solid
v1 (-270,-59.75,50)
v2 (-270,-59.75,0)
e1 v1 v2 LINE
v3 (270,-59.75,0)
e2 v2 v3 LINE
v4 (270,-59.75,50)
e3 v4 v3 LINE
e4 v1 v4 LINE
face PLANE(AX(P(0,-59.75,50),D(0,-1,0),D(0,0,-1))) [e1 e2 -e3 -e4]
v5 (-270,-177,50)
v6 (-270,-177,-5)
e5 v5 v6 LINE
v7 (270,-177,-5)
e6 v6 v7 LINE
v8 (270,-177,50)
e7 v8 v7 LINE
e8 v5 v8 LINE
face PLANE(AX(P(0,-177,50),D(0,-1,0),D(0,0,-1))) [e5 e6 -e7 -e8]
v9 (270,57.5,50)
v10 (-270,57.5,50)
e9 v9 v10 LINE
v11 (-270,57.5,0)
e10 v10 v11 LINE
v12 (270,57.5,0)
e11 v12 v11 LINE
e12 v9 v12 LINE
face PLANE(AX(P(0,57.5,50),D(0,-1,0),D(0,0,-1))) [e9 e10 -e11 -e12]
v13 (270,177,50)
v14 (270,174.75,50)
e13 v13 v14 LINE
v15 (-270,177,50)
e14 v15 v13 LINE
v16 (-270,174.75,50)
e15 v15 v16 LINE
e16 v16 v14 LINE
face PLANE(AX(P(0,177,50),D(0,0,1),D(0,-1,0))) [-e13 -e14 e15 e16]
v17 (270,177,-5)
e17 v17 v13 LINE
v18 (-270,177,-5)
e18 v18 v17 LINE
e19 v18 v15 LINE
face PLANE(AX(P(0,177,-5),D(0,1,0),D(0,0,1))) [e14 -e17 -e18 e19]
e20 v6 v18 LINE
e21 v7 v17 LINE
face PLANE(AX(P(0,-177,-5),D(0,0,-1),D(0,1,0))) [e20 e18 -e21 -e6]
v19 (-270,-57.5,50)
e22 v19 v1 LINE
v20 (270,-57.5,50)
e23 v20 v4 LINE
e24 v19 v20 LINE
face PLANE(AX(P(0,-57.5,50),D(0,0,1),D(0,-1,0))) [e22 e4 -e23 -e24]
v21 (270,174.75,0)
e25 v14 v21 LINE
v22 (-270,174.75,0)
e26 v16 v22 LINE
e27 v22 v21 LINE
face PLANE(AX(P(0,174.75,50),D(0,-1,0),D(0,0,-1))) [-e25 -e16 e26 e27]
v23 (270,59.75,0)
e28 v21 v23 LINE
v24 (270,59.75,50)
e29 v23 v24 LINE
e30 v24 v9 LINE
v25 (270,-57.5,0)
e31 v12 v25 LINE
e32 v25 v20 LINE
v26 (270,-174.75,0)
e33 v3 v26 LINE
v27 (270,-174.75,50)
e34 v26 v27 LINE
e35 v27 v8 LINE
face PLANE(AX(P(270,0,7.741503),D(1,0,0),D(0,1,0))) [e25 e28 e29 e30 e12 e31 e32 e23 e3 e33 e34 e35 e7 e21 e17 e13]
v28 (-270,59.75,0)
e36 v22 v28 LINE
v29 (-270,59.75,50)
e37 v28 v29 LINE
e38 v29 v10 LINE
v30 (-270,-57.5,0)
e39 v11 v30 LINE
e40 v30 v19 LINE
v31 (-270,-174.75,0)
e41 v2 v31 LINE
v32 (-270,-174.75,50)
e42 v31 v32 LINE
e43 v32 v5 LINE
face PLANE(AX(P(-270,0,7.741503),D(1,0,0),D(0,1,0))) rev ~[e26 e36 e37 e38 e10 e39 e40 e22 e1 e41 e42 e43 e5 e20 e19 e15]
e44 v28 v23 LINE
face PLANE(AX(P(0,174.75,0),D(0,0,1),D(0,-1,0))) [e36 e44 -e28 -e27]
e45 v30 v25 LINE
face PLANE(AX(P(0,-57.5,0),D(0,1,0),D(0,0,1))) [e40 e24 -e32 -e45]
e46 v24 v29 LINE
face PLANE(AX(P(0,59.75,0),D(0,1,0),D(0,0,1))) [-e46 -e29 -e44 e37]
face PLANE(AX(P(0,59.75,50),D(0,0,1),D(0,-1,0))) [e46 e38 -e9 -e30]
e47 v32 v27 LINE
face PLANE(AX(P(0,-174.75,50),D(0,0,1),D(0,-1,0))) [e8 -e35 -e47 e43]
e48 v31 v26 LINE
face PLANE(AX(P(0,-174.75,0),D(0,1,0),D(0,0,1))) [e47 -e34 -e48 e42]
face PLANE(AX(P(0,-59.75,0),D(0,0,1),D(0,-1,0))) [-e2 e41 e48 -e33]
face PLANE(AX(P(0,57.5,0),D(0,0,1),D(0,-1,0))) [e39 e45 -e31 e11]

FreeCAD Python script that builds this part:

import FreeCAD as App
import Part
import Sketcher

doc = App.newDocument("Part")
body = doc.addObject("PartDesign::Body", "Body")

# Sketch on YZ plane
sketch1 = body.newObject("Sketcher::SketchObject", "Sketch")
sketch1.AttachmentSupport = (doc.getObject("YZ_Plane"), [""])
sketch1.MapMode = "FlatFace"
sketch1.addGeometry(Part.LineSegment(App.Vector(57.5, 0, 0), App.Vector(-57.5, 0, 0)), False)
sketch1.addGeometry(Part.LineSegment(App.Vector(-57.5, 0, 0), App.Vector(-57.5, 50, 0)), False)
sketch1.addGeometry(Part.LineSegment(App.Vector(-57.5, 50, 0), App.Vector(-59.75, 50, 0)), False)
sketch1.addGeometry(Part.LineSegment(App.Vector(-59.75, 50, 0), App.Vector(-59.75, 0, 0)), False)
sketch1.addGeometry(Part.LineSegment(App.Vector(-59.75, 0, 0), App.Vector(-174.75, 0, 0)), False)
sketch1.addGeometry(Part.LineSegment(App.Vector(-174.75, 0, 0), App.Vector(-174.75, 50, 0)), False)
sketch1.addGeometry(Part.LineSegment(App.Vector(-174.75, 50, 0), App.Vector(-177, 50, 0)), False)
sketch1.addGeometry(Part.LineSegment(App.Vector(-177, 50, 0), App.Vector(-177, -5, 0)), False)
sketch1.addGeometry(Part.LineSegment(App.Vector(-177, -5, 0), App.Vector(177, -5, 0)), False)
sketch1.addGeometry(Part.LineSegment(App.Vector(177, -5, 0), App.Vector(177, 50, 0)), False)
sketch1.addGeometry(Part.LineSegment(App.Vector(177, 50, 0), App.Vector(174.75, 50, 0)), False)
sketch1.addGeometry(Part.LineSegment(App.Vector(174.75, 50, 0), App.Vector(174.75, 0, 0)), False)
sketch1.addGeometry(Part.LineSegment(App.Vector(174.75, 0, 0), App.Vector(59.75, 0, 0)), False)
sketch1.addGeometry(Part.LineSegment(App.Vector(59.75, 0, 0), App.Vector(59.75, 50, 0)), False)
sketch1.addGeometry(Part.LineSegment(App.Vector(59.75, 50, 0), App.Vector(57.5, 50, 0)), False)
sketch1.addGeometry(Part.LineSegment(App.Vector(57.5, 50, 0), App.Vector(57.5, 0, 0)), False)
sketch1.addConstraint(Sketcher.Constraint("Coincident", 0, 2, 1, 1))
sketch1.addConstraint(Sketcher.Constraint("Coincident", 1, 2, 2, 1))
sketch1.addConstraint(Sketcher.Constraint("Coincident", 2, 2, 3, 1))
sketch1.addConstraint(Sketcher.Constraint("Coincident", 3, 2, 4, 1))
sketch1.addConstraint(Sketcher.Constraint("Coincident", 4, 2, 5, 1))
sketch1.addConstraint(Sketcher.Constraint("Coincident", 5, 2, 6, 1))
sketch1.addConstraint(Sketcher.Constraint("Coincident", 6, 2, 7, 1))
sketch1.addConstraint(Sketcher.Constraint("Coincident", 7, 2, 8, 1))
sketch1.addConstraint(Sketcher.Constraint("Coincident", 8, 2, 9, 1))
sketch1.addConstraint(Sketcher.Constraint("Coincident", 9, 2, 10, 1))
sketch1.addConstraint(Sketcher.Constraint("Coincident", 10, 2, 11, 1))
sketch1.addConstraint(Sketcher.Constraint("Coincident", 11, 2, 12, 1))
sketch1.addConstraint(Sketcher.Constraint("Coincident", 12, 2, 13, 1))
sketch1.addConstraint(Sketcher.Constraint("Coincident", 13, 2, 14, 1))
sketch1.addConstraint(Sketcher.Constraint("Coincident", 14, 2, 15, 1))
sketch1.addConstraint(Sketcher.Constraint("Coincident", 15, 2, 0, 1))
sketch1.addConstraint(Sketcher.Constraint("Horizontal", 0))
sketch1.addConstraint(Sketcher.Constraint("Vertical", 1))
sketch1.addConstraint(Sketcher.Constraint("Horizontal", 2))
sketch1.addConstraint(Sketcher.Constraint("Vertical", 3))
sketch1.addConstraint(Sketcher.Constraint("Horizontal", 4))
sketch1.addConstraint(Sketcher.Constraint("Vertical", 5))
sketch1.addConstraint(Sketcher.Constraint("Horizontal", 6))
sketch1.addConstraint(Sketcher.Constraint("Vertical", 7))
sketch1.addConstraint(Sketcher.Constraint("Horizontal", 8))
sketch1.addConstraint(Sketcher.Constraint("Vertical", 9))
sketch1.addConstraint(Sketcher.Constraint("Horizontal", 10))
sketch1.addConstraint(Sketcher.Constraint("Vertical", 11))
sketch1.addConstraint(Sketcher.Constraint("Horizontal", 12))
sketch1.addConstraint(Sketcher.Constraint("Vertical", 13))
sketch1.addConstraint(Sketcher.Constraint("Horizontal", 14))
sketch1.addConstraint(Sketcher.Constraint("Vertical", 15))
sketch1.addConstraint(Sketcher.Constraint("Symmetric", 4, 2, 11, 2, -1, 1))
sketch1.addConstraint(Sketcher.Constraint("Symmetric", 0, 2, 15, 2, -1, 1))
sketch1.addConstraint(Sketcher.Constraint("Symmetric", 6, 2, 9, 2, -2))
sketch1.addConstraint(Sketcher.Constraint("Symmetric", 3, 2, 12, 2, -2))
sketch1.addConstraint(Sketcher.Constraint("Horizontal", 2, 2, 5, 2))
sketch1.addConstraint(Sketcher.Constraint("Horizontal", 10, 2, 13, 2))
sketch1.addConstraint(Sketcher.Constraint("Equal", 0, 4))
sketch1.addConstraint(Sketcher.Constraint("Equal", 2, 6))
sketch1.addConstraint(Sketcher.Constraint("DistanceX", 0, 2, 0, 1, 115.0))
sketch1.addConstraint(Sketcher.Constraint("DistanceX", 8, 1, 8, 2, 354.0))
sketch1.addConstraint(Sketcher.Constraint("DistanceY", 1, 1, 1, 2, 50.0))
sketch1.addConstraint(Sketcher.Constraint("DistanceY", 7, 2, 7, 1, 55.0))
pad1 = body.newObject("PartDesign::Pad", "Pad")
pad1.Profile = sketch1
pad1.Length = 540
pad1.Midplane = True

doc.recompute()
